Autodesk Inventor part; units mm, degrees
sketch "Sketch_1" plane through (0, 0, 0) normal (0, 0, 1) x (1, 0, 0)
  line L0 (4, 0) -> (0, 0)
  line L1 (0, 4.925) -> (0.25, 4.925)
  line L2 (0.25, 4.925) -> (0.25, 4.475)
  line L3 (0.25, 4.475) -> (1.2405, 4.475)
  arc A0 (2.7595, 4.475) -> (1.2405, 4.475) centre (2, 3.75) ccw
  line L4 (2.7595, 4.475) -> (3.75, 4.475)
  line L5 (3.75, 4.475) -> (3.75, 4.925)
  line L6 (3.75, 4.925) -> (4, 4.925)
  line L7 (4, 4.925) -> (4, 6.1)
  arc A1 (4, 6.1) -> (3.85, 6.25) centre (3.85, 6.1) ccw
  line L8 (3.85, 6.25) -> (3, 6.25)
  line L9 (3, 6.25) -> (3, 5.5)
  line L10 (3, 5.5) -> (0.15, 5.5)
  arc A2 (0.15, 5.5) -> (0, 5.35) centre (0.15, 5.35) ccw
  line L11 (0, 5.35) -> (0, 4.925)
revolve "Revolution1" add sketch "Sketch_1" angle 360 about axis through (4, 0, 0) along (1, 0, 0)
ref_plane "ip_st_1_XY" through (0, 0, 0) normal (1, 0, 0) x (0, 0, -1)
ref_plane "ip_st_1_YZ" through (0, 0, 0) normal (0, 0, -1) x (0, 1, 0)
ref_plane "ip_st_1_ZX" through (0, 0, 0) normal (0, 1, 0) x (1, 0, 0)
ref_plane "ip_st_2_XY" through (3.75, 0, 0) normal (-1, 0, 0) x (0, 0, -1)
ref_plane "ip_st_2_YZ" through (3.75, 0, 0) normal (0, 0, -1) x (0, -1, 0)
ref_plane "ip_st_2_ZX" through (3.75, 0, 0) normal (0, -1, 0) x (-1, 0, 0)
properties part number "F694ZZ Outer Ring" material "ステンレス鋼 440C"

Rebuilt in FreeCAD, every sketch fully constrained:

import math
import FreeCAD as App
import Part
import Sketcher
from FreeCAD import Vector
Q = App.Units.Quantity

doc = App.newDocument("Part")
params = doc.addObject("Spreadsheet::Sheet", "Params")
for row, (alias, value) in enumerate([
    ("sketch1_radius", "1.05 mm"),
    ("sketch1_radius2", "0.15 mm"),
    ("sketch1_width", "0.25 mm"),
    ("sketch1_height", "0.45 mm"),
    ("sketch1_height2", "0.75 mm"),
    ("revolution_angle", "360 deg"),
], start=1):
    params.set(f"A{row}", alias)
    params.set(f"B{row}", "=" + value)
    params.setAlias(f"B{row}", alias)

body = doc.addObject("PartDesign::Body", "Body")

# Sketch on XY plane
sketch1 = body.newObject("Sketcher::SketchObject", "Sketch")
sketch1.AttachmentSupport = (doc.getObject("XY_Plane"), [""])
sketch1.MapMode = "FlatFace"
sketch1.addGeometry(Part.LineSegment(Vector(0, 5.35, 0), Vector(0, 4.92, 0)), False)
sketch1.addGeometry(Part.LineSegment(Vector(0, 4.92, 0), Vector(0.25, 4.92, 0)), False)
sketch1.addGeometry(Part.LineSegment(Vector(0.25, 4.92, 0), Vector(0.25, 4.47, 0)), False)
sketch1.addGeometry(Part.LineSegment(Vector(0.25, 4.47, 0), Vector(1.24, 4.47, 0)), False)
sketch1.addGeometry(Part.ArcOfCircle(Part.Circle(Vector(2, 3.75, 0), Vector(0, 0, 1), 1.05), math.radians(44), math.radians(136)), False)
sketch1.addGeometry(Part.LineSegment(Vector(2.76, 4.47, 0), Vector(3.75, 4.47, 0)), False)
sketch1.addGeometry(Part.LineSegment(Vector(3.75, 4.47, 0), Vector(3.75, 4.92, 0)), False)
sketch1.addGeometry(Part.LineSegment(Vector(3.75, 4.92, 0), Vector(4, 4.92, 0)), False)
sketch1.addGeometry(Part.LineSegment(Vector(4, 4.92, 0), Vector(4, 6.1, 0)), False)
sketch1.addGeometry(Part.ArcOfCircle(Part.Circle(Vector(3.85, 6.1, 0), Vector(0, 0, 1), 0.15), math.radians(0), math.radians(90)), False)
sketch1.addGeometry(Part.LineSegment(Vector(3.85, 6.25, 0), Vector(3, 6.25, 0)), False)
sketch1.addGeometry(Part.LineSegment(Vector(3, 6.25, 0), Vector(3, 5.5, 0)), False)
sketch1.addGeometry(Part.LineSegment(Vector(3, 5.5, 0), Vector(0.15, 5.5, 0)), False)
sketch1.addGeometry(Part.ArcOfCircle(Part.Circle(Vector(0.15, 5.35, 0), Vector(0, 0, 1), 0.15), math.radians(90), math.radians(180)), False)
sketch1.addConstraint(Sketcher.Constraint("Coincident", 0, 2, 1, 1))
sketch1.addConstraint(Sketcher.Constraint("Coincident", 1, 2, 2, 1))
sketch1.addConstraint(Sketcher.Constraint("Coincident", 2, 2, 3, 1))
sketch1.addConstraint(Sketcher.Constraint("Coincident", 3, 2, 4, 2))
sketch1.addConstraint(Sketcher.Constraint("Coincident", 4, 1, 5, 1))
sketch1.addConstraint(Sketcher.Constraint("Coincident", 5, 2, 6, 1))
sketch1.addConstraint(Sketcher.Constraint("Coincident", 6, 2, 7, 1))
sketch1.addConstraint(Sketcher.Constraint("Coincident", 7, 2, 8, 1))
sketch1.addConstraint(Sketcher.Constraint("Tangent", 8, 2, 9, 1))
sketch1.addConstraint(Sketcher.Constraint("Tangent", 9, 2, 10, 1))
sketch1.addConstraint(Sketcher.Constraint("Coincident", 10, 2, 11, 1))
sketch1.addConstraint(Sketcher.Constraint("Coincident", 11, 2, 12, 1))
sketch1.addConstraint(Sketcher.Constraint("Tangent", 12, 2, 13, 1))
sketch1.addConstraint(Sketcher.Constraint("Tangent", 13, 2, 0, 1))
sketch1.addConstraint(Sketcher.Constraint("Vertical", 0))
sketch1.addConstraint(Sketcher.Constraint("Horizontal", 1))
sketch1.addConstraint(Sketcher.Constraint("Vertical", 2))
sketch1.addConstraint(Sketcher.Constraint("Horizontal", 3))
sketch1.addConstraint(Sketcher.Constraint("Horizontal", 5))
sketch1.addConstraint(Sketcher.Constraint("Vertical", 6))
sketch1.addConstraint(Sketcher.Constraint("Horizontal", 7))
sketch1.addConstraint(Sketcher.Constraint("Vertical", 8))
sketch1.addConstraint(Sketcher.Constraint("Horizontal", 10))
sketch1.addConstraint(Sketcher.Constraint("Vertical", 11))
sketch1.addConstraint(Sketcher.Constraint("Horizontal", 12))
sketch1.addConstraint(Sketcher.Constraint("Equal", 9, 13))
sketch1.addConstraint(Sketcher.Constraint("PointOnObject", 0, 2, -2))
sketch1.addConstraint(Sketcher.Constraint("Horizontal", 3, 2, 4, 1))
sketch1.addConstraint(Sketcher.Constraint("Horizontal", 1, 2, 6, 2))
sketch1.addConstraint(Sketcher.Constraint("Equal", 3, 5))
sketch1.addConstraint(Sketcher.Constraint("Equal", 1, 7))
sketch1.addConstraint(Sketcher.Constraint("Radius", 4, Q("1.05 mm")))
sketch1.addConstraint(Sketcher.Constraint("Radius", 9, Q("0.15 mm")))
sketch1.addConstraint(Sketcher.Constraint("DistanceX", -1, 1, 4, 3, Q("2 mm")))
sketch1.addConstraint(Sketcher.Constraint("DistanceX", -1, 1, 10, 2, Q("3 mm")))
sketch1.addConstraint(Sketcher.Constraint("DistanceX", 1, 1, 1, 2, Q("0.25 mm")))
sketch1.addConstraint(Sketcher.Constraint("DistanceY", 2, 2, 2, 1, Q("0.45 mm")))
sketch1.addConstraint(Sketcher.Constraint("DistanceY", 11, 2, 11, 1, Q("0.75 mm")))
sketch1.addConstraint(Sketcher.Constraint("DistanceY", -1, 1, 9, 3, Q("6.1 mm")))
sketch1.addConstraint(Sketcher.Constraint("DistanceY", 4, 3, 13, 3, Q("1.6 mm")))
sketch1.addConstraint(Sketcher.Constraint("DistanceY", 0, 2, 0, 1, Q("0.425 mm")))
sketch1.setExpression("Constraints[31]", "Params.sketch1_radius")
sketch1.setExpression("Constraints[32]", "Params.sketch1_radius2")
sketch1.setExpression("Constraints[35]", "Params.sketch1_width")
sketch1.setExpression("Constraints[36]", "Params.sketch1_height")
sketch1.setExpression("Constraints[37]", "Params.sketch1_height2")
revolution = body.newObject("PartDesign::Revolution", "Revolution")
revolution.Profile = sketch1
revolution.ReferenceAxis = (sketch1, ["H_Axis"])
revolution.setExpression("Angle", "Params.revolution_angle")

doc.recompute()
